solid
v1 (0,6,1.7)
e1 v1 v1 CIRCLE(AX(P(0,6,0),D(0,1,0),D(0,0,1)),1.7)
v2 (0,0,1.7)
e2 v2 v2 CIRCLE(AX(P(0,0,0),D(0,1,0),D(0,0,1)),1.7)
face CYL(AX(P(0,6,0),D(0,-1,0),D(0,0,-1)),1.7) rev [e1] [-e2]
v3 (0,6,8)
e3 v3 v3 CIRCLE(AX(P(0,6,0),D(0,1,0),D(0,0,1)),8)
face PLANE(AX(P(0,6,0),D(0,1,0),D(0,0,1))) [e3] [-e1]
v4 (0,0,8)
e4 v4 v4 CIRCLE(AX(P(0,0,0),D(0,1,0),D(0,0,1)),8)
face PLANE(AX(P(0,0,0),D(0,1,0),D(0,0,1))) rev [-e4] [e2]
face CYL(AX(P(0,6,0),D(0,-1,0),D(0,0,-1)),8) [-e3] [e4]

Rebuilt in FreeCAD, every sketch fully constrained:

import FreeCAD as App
import Part
import Sketcher

V = App.Vector
Q = App.Units.Quantity

doc = App.newDocument("Part")
params = doc.addObject("Spreadsheet::Sheet", "Params")
for row, (alias, value) in enumerate([
    ("sketch1_diameter", "16 mm"),
    ("sketch1_diameter2", "3.4 mm"),
    ("pad1_length", "6 mm"),
], start=1):
    params.set(f"A{row}", alias)
    params.set(f"B{row}", "=" + value)
    params.setAlias(f"B{row}", alias)

body = doc.addObject("PartDesign::Body", "Body")

sketch1 = body.newObject("Sketcher::SketchObject", "Sketch")
sketch1.AttachmentSupport = (doc.getObject("XZ_Plane"), [""])
sketch1.MapMode = "FlatFace"
sketch1.addGeometry([
    Part.Circle(V(0, 0, 0), V(0, 0, 1), 8),
    Part.Circle(V(0, 0, 0), V(0, 0, 1), 1.7),
], False)
sketch1.addConstraint([
    Sketcher.Constraint("Coincident", 0, 3, -1, 1),
    Sketcher.Constraint("Coincident", 1, 3, -1, 1),
    Sketcher.Constraint("Diameter", 0, Q("16 mm")),
    Sketcher.Constraint("Diameter", 1, Q("3.4 mm")),
])
sketch1.setExpression("Constraints[2]", "Params.sketch1_diameter")
sketch1.setExpression("Constraints[3]", "Params.sketch1_diameter2")
pad1 = body.newObject("PartDesign::Pad", "Pad")
pad1.Profile = sketch1
pad1.setExpression("Length", "Params.pad1_length")
pad1.Reversed = True

doc.recompute()
